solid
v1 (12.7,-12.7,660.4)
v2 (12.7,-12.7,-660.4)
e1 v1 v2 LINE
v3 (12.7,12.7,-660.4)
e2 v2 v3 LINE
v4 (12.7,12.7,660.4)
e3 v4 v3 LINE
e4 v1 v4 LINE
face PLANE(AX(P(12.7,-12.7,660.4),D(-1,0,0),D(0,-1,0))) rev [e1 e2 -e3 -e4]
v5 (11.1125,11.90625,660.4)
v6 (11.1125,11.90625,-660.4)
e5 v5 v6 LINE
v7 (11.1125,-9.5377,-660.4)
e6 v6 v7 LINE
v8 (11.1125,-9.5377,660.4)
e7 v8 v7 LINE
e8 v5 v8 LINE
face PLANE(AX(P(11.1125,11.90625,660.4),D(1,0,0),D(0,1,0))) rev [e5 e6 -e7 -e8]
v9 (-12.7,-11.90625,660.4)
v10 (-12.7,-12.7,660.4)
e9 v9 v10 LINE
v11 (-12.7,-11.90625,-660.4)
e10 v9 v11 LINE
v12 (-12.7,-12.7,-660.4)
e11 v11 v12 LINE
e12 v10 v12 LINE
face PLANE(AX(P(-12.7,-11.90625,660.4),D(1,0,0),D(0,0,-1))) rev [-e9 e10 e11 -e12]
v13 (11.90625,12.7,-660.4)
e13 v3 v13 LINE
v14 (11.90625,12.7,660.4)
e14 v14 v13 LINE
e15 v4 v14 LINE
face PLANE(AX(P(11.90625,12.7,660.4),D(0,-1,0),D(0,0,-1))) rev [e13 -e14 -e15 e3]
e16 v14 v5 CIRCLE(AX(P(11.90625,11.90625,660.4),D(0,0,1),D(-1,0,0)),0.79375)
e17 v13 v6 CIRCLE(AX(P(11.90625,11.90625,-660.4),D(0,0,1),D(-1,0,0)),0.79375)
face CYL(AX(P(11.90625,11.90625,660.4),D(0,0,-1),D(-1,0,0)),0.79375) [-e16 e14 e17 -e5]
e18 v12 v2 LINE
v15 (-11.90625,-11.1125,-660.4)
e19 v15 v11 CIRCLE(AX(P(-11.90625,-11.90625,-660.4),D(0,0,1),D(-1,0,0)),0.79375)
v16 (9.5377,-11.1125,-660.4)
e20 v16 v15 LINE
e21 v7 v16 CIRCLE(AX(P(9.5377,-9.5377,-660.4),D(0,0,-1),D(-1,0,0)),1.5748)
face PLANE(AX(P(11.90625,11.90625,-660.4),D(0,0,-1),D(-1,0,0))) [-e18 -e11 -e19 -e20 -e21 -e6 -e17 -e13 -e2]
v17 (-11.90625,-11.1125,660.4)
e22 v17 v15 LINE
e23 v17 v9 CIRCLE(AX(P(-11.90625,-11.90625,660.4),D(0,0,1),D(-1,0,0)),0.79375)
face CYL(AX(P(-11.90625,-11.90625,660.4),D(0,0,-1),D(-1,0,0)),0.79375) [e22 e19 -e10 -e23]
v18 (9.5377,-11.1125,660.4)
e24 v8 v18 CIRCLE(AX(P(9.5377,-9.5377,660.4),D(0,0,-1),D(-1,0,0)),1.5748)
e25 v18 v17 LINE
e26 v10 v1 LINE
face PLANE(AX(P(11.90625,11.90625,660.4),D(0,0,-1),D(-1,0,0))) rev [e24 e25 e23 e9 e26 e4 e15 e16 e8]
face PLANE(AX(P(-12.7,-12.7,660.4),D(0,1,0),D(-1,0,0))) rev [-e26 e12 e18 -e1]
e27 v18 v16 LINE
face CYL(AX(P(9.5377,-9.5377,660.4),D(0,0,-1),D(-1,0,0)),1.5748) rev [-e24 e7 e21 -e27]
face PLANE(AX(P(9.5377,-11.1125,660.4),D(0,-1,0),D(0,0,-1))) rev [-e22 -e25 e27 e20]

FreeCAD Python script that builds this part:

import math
import FreeCAD as App
import Part
import Sketcher

V = App.Vector
Q = App.Units.Quantity

doc = App.newDocument("Part")
params = doc.addObject("Spreadsheet::Sheet", "Params")
for row, (alias, value) in enumerate([
    ("sketch1_width", "1 in"),
    ("sketch1_radius", "0.03125 in"),
    ("sketch1_radius2", "0.062 in"),
    ("pad1_length", "52 in"),
], start=1):
    params.set(f"A{row}", alias)
    params.set(f"B{row}", "=" + value)
    params.setAlias(f"B{row}", alias)

body = doc.addObject("PartDesign::Body", "Body")

# Sketch on XY plane
sketch1 = body.newObject("Sketcher::SketchObject", "Sketch")
sketch1.AttachmentSupport = (doc.getObject("XY_Plane"), [""])
sketch1.MapMode = "FlatFace"
sketch1.addGeometry(Part.LineSegment(V(-12.7, -12.7, 0), V(12.7, -12.7, 0)), False)
sketch1.addGeometry(Part.LineSegment(V(12.7, -12.7, 0), V(12.7, 12.7, 0)), False)
sketch1.addGeometry(Part.LineSegment(V(12.7, 12.7, 0), V(11.9, 12.7, 0)), False)
sketch1.addGeometry(Part.ArcOfCircle(Part.Circle(V(11.9, 11.9, 0), V(0, 0, 1), 0.8), math.radians(90), math.radians(180)), False)
sketch1.addGeometry(Part.LineSegment(V(11.1, 11.9, 0), V(11.1, -9.5, 0)), False)
sketch1.addGeometry(Part.ArcOfCircle(Part.Circle(V(9.5, -9.5, 0), V(0, 0, 1), 1.6), math.radians(-90), math.radians(0)), False)
sketch1.addGeometry(Part.LineSegment(V(9.5, -11.1, 0), V(-11.9, -11.1, 0)), False)
sketch1.addGeometry(Part.ArcOfCircle(Part.Circle(V(-11.9, -11.9, 0), V(0, 0, 1), 0.8), math.radians(90), math.radians(180)), False)
sketch1.addGeometry(Part.LineSegment(V(-12.7, -11.9, 0), V(-12.7, -12.7, 0)), False)
sketch1.addConstraint(Sketcher.Constraint("Coincident", 0, 2, 1, 1))
sketch1.addConstraint(Sketcher.Constraint("Coincident", 1, 2, 2, 1))
sketch1.addConstraint(Sketcher.Constraint("Tangent", 2, 2, 3, 1))
sketch1.addConstraint(Sketcher.Constraint("Tangent", 3, 2, 4, 1))
sketch1.addConstraint(Sketcher.Constraint("Tangent", 4, 2, 5, 2))
sketch1.addConstraint(Sketcher.Constraint("Tangent", 5, 1, 6, 1))
sketch1.addConstraint(Sketcher.Constraint("Tangent", 6, 2, 7, 1))
sketch1.addConstraint(Sketcher.Constraint("Tangent", 7, 2, 8, 1))
sketch1.addConstraint(Sketcher.Constraint("Coincident", 8, 2, 0, 1))
sketch1.addConstraint(Sketcher.Constraint("Horizontal", 0))
sketch1.addConstraint(Sketcher.Constraint("Vertical", 1))
sketch1.addConstraint(Sketcher.Constraint("Horizontal", 2))
sketch1.addConstraint(Sketcher.Constraint("Vertical", 4))
sketch1.addConstraint(Sketcher.Constraint("Horizontal", 6))
sketch1.addConstraint(Sketcher.Constraint("Vertical", 8))
sketch1.addConstraint(Sketcher.Constraint("Equal", 3, 7))
sketch1.addConstraint(Sketcher.Constraint("Symmetric", 3, 3, 7, 3, -1, 1))
sketch1.addConstraint(Sketcher.Constraint("Symmetric", 1, 2, 8, 2, -1, 1))
sketch1.addConstraint(Sketcher.Constraint("Equal", 0, 1))
sketch1.addConstraint(Sketcher.Constraint("DistanceX", 0, 1, 0, 2, Q("1 in")))
sketch1.addConstraint(Sketcher.Constraint("Radius", 3, Q("0.03125 in")))
sketch1.addConstraint(Sketcher.Constraint("Radius", 5, Q("0.062 in")))
sketch1.setExpression("Constraints[19]", "Params.sketch1_width")
sketch1.setExpression("Constraints[20]", "Params.sketch1_radius")
sketch1.setExpression("Constraints[21]", "Params.sketch1_radius2")
pad1 = body.newObject("PartDesign::Pad", "Pad")
pad1.Profile = sketch1
pad1.setExpression("Length", "Params.pad1_length")
pad1.Midplane = True

doc.recompute()
